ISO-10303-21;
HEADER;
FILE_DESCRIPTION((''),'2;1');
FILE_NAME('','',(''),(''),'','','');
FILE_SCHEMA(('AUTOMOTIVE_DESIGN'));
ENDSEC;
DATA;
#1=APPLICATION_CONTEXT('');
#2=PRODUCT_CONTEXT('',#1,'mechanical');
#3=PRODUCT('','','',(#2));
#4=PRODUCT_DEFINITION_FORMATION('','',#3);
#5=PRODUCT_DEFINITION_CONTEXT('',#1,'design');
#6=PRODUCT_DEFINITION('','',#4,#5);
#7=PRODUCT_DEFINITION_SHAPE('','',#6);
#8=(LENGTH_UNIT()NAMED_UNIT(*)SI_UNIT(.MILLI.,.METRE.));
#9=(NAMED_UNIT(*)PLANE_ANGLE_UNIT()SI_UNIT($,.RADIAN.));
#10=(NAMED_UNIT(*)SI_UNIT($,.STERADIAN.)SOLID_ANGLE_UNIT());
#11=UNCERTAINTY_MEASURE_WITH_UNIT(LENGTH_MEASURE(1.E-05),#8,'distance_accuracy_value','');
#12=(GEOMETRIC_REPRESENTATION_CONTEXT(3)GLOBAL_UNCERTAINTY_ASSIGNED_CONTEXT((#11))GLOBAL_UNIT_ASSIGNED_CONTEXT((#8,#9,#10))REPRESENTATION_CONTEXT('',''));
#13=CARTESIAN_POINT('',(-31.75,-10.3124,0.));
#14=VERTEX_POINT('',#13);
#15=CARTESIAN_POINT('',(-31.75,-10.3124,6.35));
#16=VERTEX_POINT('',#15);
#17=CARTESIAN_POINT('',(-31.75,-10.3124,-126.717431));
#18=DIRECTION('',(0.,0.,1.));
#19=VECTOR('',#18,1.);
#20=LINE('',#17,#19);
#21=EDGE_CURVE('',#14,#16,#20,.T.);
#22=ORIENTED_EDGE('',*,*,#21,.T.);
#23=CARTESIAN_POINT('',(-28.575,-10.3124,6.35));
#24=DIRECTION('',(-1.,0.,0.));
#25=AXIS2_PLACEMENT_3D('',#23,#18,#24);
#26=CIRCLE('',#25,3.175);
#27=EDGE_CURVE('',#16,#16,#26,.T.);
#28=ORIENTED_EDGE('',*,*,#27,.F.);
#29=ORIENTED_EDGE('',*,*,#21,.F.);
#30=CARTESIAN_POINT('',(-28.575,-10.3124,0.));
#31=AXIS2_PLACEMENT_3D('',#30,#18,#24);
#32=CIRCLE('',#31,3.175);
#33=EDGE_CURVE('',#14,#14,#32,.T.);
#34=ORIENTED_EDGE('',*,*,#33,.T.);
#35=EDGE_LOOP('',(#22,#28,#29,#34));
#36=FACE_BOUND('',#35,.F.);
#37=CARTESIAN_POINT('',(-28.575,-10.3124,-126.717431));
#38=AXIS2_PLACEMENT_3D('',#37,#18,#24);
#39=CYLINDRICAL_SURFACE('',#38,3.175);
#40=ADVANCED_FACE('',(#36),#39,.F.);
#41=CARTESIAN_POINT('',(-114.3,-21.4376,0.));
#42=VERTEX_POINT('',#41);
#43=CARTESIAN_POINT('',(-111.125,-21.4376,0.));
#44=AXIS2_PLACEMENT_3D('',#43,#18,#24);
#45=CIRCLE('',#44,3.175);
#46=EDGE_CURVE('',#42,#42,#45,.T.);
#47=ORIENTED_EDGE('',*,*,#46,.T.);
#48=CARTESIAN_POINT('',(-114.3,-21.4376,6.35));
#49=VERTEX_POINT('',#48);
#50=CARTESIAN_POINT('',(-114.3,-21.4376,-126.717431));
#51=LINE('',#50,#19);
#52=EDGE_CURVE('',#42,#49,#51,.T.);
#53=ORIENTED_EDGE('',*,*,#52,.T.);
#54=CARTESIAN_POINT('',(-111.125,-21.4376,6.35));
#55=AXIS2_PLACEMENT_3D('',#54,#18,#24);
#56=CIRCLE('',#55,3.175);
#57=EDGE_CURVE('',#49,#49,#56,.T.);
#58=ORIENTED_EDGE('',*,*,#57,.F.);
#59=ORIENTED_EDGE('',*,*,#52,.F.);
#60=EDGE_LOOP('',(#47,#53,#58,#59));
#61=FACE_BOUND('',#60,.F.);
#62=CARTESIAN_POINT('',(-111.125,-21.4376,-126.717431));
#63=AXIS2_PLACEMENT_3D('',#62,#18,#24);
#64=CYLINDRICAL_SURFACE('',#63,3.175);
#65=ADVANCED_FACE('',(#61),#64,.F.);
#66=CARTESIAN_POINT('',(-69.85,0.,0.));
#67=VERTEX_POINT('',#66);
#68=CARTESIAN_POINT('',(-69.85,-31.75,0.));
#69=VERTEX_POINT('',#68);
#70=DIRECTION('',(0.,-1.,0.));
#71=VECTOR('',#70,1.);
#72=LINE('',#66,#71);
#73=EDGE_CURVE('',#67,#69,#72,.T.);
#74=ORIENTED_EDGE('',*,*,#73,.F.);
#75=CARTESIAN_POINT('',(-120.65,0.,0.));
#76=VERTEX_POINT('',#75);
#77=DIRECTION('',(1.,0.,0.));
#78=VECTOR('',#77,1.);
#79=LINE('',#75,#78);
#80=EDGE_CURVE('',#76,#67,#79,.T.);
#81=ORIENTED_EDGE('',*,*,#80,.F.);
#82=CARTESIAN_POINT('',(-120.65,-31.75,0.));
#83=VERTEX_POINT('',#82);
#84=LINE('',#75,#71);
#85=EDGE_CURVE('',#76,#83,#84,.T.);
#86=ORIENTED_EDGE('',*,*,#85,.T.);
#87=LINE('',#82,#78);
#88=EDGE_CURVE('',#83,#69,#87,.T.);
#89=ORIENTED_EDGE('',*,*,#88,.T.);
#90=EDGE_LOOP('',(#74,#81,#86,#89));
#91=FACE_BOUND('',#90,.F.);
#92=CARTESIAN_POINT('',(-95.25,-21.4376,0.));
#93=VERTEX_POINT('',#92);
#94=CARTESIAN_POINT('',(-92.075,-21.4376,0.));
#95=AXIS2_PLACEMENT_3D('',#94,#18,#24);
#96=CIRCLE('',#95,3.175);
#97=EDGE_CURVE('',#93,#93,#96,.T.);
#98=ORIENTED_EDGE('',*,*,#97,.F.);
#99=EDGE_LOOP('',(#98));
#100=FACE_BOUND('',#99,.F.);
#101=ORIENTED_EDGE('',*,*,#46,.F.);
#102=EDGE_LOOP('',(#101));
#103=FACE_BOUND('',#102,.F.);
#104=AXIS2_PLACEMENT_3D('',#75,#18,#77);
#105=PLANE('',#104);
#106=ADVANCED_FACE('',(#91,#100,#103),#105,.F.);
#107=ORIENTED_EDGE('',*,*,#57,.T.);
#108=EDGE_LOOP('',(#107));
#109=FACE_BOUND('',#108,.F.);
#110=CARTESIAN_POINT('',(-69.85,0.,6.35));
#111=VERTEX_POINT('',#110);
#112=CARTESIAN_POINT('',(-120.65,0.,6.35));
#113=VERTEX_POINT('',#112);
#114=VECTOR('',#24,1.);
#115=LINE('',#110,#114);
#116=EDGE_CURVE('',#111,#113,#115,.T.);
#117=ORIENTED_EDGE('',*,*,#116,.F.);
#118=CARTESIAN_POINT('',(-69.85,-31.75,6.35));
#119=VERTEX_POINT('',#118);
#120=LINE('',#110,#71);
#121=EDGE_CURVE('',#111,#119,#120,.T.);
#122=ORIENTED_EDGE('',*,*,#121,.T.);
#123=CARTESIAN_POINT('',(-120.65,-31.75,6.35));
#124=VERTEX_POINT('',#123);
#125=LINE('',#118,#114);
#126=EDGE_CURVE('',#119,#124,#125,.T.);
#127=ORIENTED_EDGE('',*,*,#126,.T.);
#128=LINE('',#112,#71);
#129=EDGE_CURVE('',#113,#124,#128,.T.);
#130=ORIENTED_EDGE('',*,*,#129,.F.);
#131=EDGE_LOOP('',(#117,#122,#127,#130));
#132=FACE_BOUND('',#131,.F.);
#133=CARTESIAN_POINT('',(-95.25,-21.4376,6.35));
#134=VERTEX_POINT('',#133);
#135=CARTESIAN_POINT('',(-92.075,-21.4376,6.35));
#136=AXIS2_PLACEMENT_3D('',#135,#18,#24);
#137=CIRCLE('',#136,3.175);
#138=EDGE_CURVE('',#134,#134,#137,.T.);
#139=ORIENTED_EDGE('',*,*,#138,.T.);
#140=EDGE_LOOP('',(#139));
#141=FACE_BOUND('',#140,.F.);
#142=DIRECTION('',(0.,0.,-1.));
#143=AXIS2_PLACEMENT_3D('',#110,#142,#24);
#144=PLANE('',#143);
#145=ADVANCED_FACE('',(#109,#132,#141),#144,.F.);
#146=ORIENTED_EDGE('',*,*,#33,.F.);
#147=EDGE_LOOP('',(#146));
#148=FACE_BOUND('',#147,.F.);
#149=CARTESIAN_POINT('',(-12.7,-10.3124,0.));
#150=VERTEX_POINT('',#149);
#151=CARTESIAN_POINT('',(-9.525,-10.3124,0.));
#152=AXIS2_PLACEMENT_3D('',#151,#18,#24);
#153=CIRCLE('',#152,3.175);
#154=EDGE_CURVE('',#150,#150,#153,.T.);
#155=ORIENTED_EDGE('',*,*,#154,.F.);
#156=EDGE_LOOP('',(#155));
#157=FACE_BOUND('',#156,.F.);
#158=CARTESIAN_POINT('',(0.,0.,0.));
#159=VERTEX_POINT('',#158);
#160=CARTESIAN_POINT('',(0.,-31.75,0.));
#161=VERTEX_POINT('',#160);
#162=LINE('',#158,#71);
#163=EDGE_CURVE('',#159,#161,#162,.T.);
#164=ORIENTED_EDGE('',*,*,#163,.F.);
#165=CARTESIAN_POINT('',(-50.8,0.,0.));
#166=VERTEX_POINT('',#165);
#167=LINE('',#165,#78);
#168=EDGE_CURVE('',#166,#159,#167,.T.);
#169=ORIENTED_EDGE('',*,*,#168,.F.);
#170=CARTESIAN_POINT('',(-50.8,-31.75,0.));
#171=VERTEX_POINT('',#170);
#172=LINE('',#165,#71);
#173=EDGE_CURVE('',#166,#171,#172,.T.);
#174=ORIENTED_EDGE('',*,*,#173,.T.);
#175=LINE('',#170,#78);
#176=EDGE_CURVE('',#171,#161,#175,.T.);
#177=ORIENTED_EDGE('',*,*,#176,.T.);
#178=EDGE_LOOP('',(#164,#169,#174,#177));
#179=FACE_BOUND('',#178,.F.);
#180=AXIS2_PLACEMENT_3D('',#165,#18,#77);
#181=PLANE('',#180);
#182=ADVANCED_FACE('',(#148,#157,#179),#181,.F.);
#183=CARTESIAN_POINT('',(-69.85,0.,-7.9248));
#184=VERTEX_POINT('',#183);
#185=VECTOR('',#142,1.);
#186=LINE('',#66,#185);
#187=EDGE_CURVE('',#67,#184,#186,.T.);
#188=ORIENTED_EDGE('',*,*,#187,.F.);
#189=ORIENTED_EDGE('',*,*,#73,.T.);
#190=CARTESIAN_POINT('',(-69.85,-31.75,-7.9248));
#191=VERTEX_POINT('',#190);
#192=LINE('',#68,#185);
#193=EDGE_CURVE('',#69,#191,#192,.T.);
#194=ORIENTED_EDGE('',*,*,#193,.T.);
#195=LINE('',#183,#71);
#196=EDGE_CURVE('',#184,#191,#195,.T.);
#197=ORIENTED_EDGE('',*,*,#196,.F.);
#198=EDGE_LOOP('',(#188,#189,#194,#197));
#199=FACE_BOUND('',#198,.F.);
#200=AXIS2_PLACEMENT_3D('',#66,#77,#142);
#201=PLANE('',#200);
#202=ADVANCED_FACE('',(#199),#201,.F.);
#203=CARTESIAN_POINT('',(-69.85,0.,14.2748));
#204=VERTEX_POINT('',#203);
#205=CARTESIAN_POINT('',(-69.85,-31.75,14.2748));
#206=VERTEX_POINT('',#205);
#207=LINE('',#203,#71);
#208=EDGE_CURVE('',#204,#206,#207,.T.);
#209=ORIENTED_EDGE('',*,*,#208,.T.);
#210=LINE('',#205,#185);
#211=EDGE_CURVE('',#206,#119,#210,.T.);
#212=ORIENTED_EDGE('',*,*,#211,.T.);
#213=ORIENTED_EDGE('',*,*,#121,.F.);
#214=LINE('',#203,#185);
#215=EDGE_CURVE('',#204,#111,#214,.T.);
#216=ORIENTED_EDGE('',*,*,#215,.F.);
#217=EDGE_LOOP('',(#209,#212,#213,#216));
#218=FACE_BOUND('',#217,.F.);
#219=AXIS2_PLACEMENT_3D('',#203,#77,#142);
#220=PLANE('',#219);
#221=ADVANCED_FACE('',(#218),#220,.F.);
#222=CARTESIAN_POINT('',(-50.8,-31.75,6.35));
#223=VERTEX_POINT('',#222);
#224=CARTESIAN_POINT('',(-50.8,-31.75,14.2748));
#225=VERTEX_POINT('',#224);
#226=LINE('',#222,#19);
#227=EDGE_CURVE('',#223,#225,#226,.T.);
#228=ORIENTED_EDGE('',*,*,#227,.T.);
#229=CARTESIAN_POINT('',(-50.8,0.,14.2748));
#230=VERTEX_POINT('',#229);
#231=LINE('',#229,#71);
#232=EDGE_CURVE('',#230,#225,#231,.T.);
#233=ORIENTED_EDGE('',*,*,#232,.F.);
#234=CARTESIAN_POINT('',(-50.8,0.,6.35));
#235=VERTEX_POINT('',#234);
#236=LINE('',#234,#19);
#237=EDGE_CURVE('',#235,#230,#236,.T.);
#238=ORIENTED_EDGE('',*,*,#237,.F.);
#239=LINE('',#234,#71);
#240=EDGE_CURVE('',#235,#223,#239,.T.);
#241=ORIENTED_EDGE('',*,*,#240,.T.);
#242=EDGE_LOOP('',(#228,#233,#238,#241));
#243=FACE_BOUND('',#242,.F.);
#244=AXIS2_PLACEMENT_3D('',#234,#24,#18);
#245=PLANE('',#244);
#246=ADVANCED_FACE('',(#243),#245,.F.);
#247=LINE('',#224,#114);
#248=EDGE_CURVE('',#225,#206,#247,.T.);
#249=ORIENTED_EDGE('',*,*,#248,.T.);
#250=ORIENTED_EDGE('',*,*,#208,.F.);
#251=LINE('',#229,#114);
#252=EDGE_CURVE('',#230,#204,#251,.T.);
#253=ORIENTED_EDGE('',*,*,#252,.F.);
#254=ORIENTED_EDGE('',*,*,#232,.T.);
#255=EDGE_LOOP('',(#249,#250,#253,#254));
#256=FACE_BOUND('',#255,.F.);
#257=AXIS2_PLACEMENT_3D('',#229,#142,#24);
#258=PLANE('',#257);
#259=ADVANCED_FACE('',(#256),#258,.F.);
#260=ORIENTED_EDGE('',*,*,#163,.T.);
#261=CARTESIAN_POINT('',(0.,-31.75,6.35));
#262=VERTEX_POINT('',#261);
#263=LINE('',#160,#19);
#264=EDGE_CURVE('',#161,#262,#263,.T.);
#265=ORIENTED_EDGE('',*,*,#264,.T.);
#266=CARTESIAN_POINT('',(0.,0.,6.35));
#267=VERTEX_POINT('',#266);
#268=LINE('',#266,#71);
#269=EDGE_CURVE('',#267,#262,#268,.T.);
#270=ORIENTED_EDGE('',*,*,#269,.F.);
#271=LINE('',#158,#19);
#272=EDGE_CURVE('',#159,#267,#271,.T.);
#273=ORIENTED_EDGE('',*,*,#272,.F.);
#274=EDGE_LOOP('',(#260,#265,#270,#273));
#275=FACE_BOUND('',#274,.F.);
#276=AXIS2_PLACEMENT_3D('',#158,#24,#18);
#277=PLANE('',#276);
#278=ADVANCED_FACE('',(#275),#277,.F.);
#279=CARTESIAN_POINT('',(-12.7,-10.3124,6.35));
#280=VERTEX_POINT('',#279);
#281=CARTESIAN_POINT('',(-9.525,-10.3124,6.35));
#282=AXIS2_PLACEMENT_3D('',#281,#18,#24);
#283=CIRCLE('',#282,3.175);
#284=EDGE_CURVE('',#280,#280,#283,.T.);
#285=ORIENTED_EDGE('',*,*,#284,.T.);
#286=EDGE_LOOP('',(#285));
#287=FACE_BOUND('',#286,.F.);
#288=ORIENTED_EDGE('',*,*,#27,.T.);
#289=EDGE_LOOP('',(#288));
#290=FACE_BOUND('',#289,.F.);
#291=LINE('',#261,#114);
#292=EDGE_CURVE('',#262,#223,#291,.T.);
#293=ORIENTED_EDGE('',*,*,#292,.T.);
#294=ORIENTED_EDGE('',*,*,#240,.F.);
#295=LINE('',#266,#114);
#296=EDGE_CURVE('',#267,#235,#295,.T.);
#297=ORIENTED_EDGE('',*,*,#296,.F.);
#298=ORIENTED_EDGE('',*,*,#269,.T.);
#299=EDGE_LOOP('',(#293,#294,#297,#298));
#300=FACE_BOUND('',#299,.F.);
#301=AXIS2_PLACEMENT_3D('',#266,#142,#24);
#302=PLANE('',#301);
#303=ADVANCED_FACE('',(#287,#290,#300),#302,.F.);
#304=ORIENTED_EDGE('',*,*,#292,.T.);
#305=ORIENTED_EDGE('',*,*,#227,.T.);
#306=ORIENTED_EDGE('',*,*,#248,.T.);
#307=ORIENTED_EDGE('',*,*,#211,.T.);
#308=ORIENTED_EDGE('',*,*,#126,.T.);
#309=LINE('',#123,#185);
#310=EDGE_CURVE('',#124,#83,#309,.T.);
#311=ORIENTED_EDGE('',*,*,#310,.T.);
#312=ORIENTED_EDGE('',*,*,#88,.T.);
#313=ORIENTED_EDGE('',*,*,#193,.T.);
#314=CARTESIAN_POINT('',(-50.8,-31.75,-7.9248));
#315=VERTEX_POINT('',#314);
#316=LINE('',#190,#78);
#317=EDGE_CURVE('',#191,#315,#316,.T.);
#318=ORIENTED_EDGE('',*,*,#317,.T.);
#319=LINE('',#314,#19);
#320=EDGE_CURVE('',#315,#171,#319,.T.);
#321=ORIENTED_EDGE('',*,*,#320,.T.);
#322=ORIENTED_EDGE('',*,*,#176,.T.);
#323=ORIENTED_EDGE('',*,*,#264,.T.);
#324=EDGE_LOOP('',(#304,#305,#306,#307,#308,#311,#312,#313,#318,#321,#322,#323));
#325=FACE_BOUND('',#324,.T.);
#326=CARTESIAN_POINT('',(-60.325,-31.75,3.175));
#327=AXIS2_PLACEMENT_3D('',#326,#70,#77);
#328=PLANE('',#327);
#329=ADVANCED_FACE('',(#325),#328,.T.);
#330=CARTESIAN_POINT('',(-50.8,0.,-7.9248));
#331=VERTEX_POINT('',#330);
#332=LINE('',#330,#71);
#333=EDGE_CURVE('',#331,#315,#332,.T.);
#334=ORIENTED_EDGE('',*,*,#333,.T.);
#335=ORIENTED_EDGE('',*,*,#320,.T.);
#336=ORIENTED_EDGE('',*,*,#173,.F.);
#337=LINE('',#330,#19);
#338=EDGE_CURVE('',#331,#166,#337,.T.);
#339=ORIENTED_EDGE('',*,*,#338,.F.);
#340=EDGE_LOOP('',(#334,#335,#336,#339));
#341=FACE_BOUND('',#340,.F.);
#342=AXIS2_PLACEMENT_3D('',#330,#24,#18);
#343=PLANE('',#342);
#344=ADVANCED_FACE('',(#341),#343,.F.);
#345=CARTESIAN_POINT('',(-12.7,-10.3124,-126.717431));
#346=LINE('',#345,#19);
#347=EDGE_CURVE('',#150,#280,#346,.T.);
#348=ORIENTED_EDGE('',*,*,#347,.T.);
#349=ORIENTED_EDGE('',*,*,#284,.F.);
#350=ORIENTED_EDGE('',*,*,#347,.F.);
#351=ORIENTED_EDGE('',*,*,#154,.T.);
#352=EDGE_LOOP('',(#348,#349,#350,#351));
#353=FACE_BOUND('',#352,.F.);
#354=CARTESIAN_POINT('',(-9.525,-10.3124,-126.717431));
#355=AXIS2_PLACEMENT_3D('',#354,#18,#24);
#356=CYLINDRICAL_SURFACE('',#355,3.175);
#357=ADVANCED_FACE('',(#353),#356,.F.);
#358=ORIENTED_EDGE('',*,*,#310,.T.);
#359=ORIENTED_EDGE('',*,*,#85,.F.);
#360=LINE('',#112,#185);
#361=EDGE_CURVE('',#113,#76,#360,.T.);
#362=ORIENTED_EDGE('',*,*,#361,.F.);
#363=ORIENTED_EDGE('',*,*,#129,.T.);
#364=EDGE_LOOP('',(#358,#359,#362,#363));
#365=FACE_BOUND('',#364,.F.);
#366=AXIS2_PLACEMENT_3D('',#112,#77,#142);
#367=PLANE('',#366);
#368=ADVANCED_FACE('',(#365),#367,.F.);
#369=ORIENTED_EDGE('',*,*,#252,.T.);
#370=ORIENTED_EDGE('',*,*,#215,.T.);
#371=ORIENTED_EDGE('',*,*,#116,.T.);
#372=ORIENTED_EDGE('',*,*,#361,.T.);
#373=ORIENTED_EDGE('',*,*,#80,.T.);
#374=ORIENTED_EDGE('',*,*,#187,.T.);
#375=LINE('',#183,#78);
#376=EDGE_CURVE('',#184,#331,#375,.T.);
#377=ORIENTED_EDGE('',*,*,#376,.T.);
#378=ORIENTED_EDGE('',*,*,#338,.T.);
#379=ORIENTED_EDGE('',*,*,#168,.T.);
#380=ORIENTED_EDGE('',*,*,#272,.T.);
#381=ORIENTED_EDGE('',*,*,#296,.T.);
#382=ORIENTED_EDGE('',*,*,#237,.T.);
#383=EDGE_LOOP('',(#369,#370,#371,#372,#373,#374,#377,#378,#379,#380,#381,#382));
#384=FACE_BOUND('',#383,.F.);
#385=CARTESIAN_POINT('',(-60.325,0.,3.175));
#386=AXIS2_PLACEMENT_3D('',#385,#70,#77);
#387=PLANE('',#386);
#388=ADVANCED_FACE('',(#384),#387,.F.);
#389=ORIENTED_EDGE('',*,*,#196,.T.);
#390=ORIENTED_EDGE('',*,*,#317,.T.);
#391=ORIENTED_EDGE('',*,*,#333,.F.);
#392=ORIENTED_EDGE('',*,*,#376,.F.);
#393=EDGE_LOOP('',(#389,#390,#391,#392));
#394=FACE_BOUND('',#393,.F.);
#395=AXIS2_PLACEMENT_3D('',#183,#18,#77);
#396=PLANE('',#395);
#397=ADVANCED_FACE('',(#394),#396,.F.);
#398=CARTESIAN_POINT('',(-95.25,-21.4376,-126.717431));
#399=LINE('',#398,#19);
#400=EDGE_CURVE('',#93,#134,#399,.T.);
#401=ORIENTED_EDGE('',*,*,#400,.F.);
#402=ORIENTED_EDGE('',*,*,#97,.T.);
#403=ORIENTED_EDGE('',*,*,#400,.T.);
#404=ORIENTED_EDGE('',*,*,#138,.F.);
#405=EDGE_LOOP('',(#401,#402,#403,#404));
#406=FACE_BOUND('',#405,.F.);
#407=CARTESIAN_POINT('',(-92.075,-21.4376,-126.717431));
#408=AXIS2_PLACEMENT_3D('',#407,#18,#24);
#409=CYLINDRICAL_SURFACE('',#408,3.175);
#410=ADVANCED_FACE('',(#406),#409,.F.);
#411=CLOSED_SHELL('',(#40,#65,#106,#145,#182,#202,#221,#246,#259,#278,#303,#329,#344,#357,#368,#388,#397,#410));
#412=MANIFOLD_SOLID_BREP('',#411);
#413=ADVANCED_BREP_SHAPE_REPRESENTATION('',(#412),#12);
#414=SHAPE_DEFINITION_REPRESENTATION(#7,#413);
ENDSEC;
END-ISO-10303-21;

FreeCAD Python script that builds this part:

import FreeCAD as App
import Part
import Sketcher

V = App.Vector
Q = App.Units.Quantity


def add_polygon(sketch, points):
    """Adds a closed chain of lines whose ends are joined by coincident constraints."""
    first, n = sketch.GeometryCount, len(points)
    for a, b in zip(points, points[1:] + points[:1]):
        sketch.addGeometry(Part.LineSegment(App.Vector(*a, 0), App.Vector(*b, 0)), False)
    for i in range(n):
        sketch.addConstraint(Sketcher.Constraint("Coincident", first + i, 2, first + (i + 1) % n, 1))

doc = App.newDocument("Part")
params = doc.addObject("Spreadsheet::Sheet", "Params")
for row, (alias, value) in enumerate([
    ("sketch1_width", "2 in"),
    ("sketch1_width2", "0.75 in"),
    ("sketch1_height", "0.25 in"),
    ("sketch1_height2", "0.312 in"),
    ("pad1_length", "1.25 in"),
    ("sketch2_diameter", "0.25 in"),
    ("hole_diameter", "0.25 in"),
], start=1):
    params.set(f"A{row}", alias)
    params.set(f"B{row}", "=" + value)
    params.setAlias(f"B{row}", alias)

body = doc.addObject("PartDesign::Body", "Body")

# Sketch on XZ plane
sketch1 = body.newObject("Sketcher::SketchObject", "Sketch")
sketch1.AttachmentSupport = (doc.getObject("XZ_Plane"), [""])
sketch1.MapMode = "FlatFace"
add_polygon(sketch1, [(-51, 0), (0, 0), (0, 6), (-51, 6), (-51, 14), (-70, 14), (-70, 6), (-121, 6), (-121, 0), (-70, 0), (-70, -8), (-51, -8)])  # lines 0-11
sketch1.addConstraint([
    Sketcher.Constraint("Horizontal", 0),
    Sketcher.Constraint("Vertical", 1),
    Sketcher.Constraint("Horizontal", 2),
    Sketcher.Constraint("Vertical", 3),
    Sketcher.Constraint("Horizontal", 4),
    Sketcher.Constraint("Vertical", 5),
    Sketcher.Constraint("Horizontal", 6),
    Sketcher.Constraint("Vertical", 7),
    Sketcher.Constraint("Horizontal", 8),
    Sketcher.Constraint("Vertical", 9),
    Sketcher.Constraint("Horizontal", 10),
    Sketcher.Constraint("Vertical", 11),
    Sketcher.Constraint("Coincident", 0, 2, -1, 1),
    Sketcher.Constraint("PointOnObject", 7, 2, -1),
    Sketcher.Constraint("Horizontal", 2, 2, 5, 2),
    Sketcher.Constraint("Vertical", 5, 2, 8, 2),
    Sketcher.Constraint("Vertical", 3, 2, 10, 2),
    Sketcher.Constraint("Equal", 2, 6),
    Sketcher.Constraint("Equal", 5, 9),
    Sketcher.Constraint("DistanceX", 0, 1, 0, 2, Q("2 in")),
    Sketcher.Constraint("DistanceX", 4, 2, 4, 1, Q("0.75 in")),
    Sketcher.Constraint("DistanceY", 1, 1, 1, 2, Q("0.25 in")),
    Sketcher.Constraint("DistanceY", 3, 1, 3, 2, Q("0.312 in")),
])
sketch1.setExpression("Constraints[31]", "Params.sketch1_width")
sketch1.setExpression("Constraints[32]", "Params.sketch1_width2")
sketch1.setExpression("Constraints[33]", "Params.sketch1_height")
sketch1.setExpression("Constraints[34]", "Params.sketch1_height2")
pad1 = body.newObject("PartDesign::Pad", "Pad")
pad1.Profile = sketch1
pad1.setExpression("Length", "Params.pad1_length")

# Sketch on XY plane
sketch2 = body.newObject("Sketcher::SketchObject", "Sketch001")
sketch2.AttachmentSupport = (doc.getObject("XY_Plane"), [""])
sketch2.MapMode = "FlatFace"
sketch2.addGeometry([
    Part.Circle(V(-111.1, -21.4, 0), V(0, 0, 1), 3.2),
    Part.Circle(V(-92.1, -21.4, 0), V(0, 0, 1), 3.2),
    Part.Circle(V(-28.6, -10.3, 0), V(0, 0, 1), 3.2),
    Part.Circle(V(-9.5, -10.3, 0), V(0, 0, 1), 3.2),
], False)
sketch2.addConstraint([
    Sketcher.Constraint("Equal", 0, 1),
    Sketcher.Constraint("Equal", 1, 2),
    Sketcher.Constraint("Equal", 2, 3),
    Sketcher.Constraint("Horizontal", 0, 3, 1, 3),
    Sketcher.Constraint("Horizontal", 2, 3, 3, 3),
    Sketcher.Constraint("Diameter", 0, Q("0.25 in")),
    Sketcher.Constraint("DistanceX", 0, 3, 3, 3, Q("4 in")),
    Sketcher.Constraint("DistanceX", 1, 3, 2, 3, Q("2.5 in")),
    Sketcher.Constraint("DistanceX", 0, 3, 1, 3, Q("0.75 in")),
    Sketcher.Constraint("DistanceX", 0, 3, -1, 1, Q("4.375 in")),
    Sketcher.Constraint("DistanceY", 0, 3, -1, 1, Q("0.844 in")),
    Sketcher.Constraint("DistanceY", 2, 3, -1, 1, Q("0.406 in")),
])
sketch2.setExpression("Constraints[5]", "Params.sketch2_diameter")
doc.recompute()
hole = body.newObject("PartDesign::Hole", "Hole")
hole.Profile = sketch2
hole.ThreadType = "None"
hole.setExpression("Diameter", "Params.hole_diameter")
hole.DepthType = "ThroughAll"
hole.Reversed = True

doc.recompute()
